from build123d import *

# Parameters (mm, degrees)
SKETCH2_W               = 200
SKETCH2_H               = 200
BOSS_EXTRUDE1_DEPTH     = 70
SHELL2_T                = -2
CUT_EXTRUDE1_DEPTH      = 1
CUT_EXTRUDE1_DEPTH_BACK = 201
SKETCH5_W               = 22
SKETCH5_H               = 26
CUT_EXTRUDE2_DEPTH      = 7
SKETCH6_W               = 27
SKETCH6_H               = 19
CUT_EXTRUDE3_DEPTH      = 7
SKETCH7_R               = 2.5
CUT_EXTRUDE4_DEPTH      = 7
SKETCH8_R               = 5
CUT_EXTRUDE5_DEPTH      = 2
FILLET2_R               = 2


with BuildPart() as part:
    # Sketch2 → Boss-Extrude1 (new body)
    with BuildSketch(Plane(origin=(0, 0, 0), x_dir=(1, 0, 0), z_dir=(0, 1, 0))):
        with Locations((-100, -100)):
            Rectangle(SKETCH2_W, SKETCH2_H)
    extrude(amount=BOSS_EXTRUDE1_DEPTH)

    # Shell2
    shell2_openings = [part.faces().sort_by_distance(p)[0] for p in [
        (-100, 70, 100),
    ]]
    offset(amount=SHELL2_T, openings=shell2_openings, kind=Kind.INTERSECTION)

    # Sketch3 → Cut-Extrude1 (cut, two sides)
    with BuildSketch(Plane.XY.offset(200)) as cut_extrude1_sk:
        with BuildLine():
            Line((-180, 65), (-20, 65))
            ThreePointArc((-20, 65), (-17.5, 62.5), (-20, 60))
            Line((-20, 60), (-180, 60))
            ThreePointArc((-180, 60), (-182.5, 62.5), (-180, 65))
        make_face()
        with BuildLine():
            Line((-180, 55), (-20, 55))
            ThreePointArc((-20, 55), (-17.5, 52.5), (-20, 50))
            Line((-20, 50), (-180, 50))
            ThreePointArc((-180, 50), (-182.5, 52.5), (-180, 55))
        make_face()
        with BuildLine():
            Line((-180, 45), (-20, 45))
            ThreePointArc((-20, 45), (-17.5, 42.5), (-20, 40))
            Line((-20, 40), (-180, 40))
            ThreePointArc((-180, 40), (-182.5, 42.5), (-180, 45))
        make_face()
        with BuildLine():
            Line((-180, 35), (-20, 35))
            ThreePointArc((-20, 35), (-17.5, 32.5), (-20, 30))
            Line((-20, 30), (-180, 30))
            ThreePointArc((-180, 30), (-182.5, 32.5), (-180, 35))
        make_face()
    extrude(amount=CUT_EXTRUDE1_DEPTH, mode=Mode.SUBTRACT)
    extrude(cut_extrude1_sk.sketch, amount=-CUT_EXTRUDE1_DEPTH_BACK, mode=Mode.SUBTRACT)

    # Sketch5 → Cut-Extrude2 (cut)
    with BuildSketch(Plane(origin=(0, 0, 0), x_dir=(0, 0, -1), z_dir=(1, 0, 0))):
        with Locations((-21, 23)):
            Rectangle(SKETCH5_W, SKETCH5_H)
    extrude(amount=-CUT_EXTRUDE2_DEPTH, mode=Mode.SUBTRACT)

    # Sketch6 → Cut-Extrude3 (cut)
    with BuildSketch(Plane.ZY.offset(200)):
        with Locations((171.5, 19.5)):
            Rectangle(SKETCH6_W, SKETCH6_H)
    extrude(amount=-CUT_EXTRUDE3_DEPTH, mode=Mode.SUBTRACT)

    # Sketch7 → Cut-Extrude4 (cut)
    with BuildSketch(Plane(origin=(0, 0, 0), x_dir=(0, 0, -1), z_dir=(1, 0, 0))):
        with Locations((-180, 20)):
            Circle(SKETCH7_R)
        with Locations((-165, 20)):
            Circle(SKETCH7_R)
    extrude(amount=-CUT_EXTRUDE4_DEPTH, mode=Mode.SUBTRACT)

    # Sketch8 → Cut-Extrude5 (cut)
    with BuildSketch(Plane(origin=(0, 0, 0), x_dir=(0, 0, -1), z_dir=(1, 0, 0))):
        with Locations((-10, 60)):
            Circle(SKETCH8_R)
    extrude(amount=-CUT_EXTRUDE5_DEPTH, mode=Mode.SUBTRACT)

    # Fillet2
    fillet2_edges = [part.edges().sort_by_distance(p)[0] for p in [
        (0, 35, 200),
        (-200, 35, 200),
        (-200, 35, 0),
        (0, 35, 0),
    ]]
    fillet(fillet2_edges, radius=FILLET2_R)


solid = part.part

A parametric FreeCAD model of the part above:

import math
import FreeCAD as App
import Part
import Sketcher


def edges_at(feature, points):
    """Names of the edges that pass closest to the given points."""
    edges = feature.Shape.Edges
    near = lambda p: min(range(len(edges)), key=lambda i: edges[i].distToShape(Part.Vertex(*p))[0])
    return sorted({f"Edge{near(p) + 1}" for p in points})


def faces_at(feature, points):
    """Names of the faces that lie closest to the given points."""
    faces = feature.Shape.Faces
    near = lambda p: min(range(len(faces)), key=lambda i: faces[i].distToShape(Part.Vertex(*p))[0])
    return sorted({f"Face{near(p) + 1}" for p in points})

doc = App.newDocument("Part")
body = doc.addObject("PartDesign::Body", "Body")

sketch1 = body.newObject("Sketcher::SketchObject", "Sketch")
sketch1.AttachmentSupport = (doc.getObject("XZ_Plane"), [""])
sketch1.MapMode = "FlatFace"
sketch1.addGeometry([
    Part.LineSegment(App.Vector(-200, 0, 0), App.Vector(-200, 200, 0)),
    Part.LineSegment(App.Vector(-200, 200, 0), App.Vector(0, 200, 0)),
    Part.LineSegment(App.Vector(0, 200, 0), App.Vector(0, 0, 0)),
    Part.LineSegment(App.Vector(0, 0, 0), App.Vector(-200, 0, 0)),
], False)
sketch1.addConstraint([
    Sketcher.Constraint("Coincident", 0, 2, 1, 1),
    Sketcher.Constraint("Coincident", 1, 2, 2, 1),
    Sketcher.Constraint("Coincident", 2, 2, 3, 1),
    Sketcher.Constraint("Coincident", 3, 2, 0, 1),
    Sketcher.Constraint("Vertical", 0),
    Sketcher.Constraint("Horizontal", 1),
    Sketcher.Constraint("Vertical", 2),
    Sketcher.Constraint("Horizontal", 3),
    Sketcher.Constraint("Coincident", 2, 2, -1, 1),
    Sketcher.Constraint("Equal", 3, 0),
    Sketcher.Constraint("DistanceX", 1, 1, 1, 2, 200.0),
])
pad1 = body.newObject("PartDesign::Pad", "Pad")
pad1.Profile = sketch1
pad1.Length = 70
pad1.Reversed = True
doc.recompute()

thickness = body.newObject("PartDesign::Thickness", "Thickness")
thickness.Base = (pad1, faces_at(pad1, [(-100, 70, 100)]))
thickness.Value = 2
thickness.Reversed = True
thickness.Join = "Intersection"

sketch2 = body.newObject("Sketcher::SketchObject", "Sketch001")
sketch2.AttachmentSupport = (doc.getObject("XY_Plane"), [""])
sketch2.MapMode = "FlatFace"
sketch2.AttachmentOffset = App.Placement(App.Vector(0, 0, 200), App.Rotation())
sketch2.addGeometry([
    Part.LineSegment(App.Vector(-20, 65, 0), App.Vector(-180, 65, 0)),
    Part.ArcOfCircle(Part.Circle(App.Vector(-180, 62.5, 0), App.Vector(0, 0, 1), 2.5), math.radians(90), math.radians(270)),
    Part.LineSegment(App.Vector(-180, 60, 0), App.Vector(-20, 60, 0)),
    Part.ArcOfCircle(Part.Circle(App.Vector(-20, 62.5, 0), App.Vector(0, 0, 1), 2.5), math.radians(-90), math.radians(90)),
    Part.LineSegment(App.Vector(-20, 55, 0), App.Vector(-180, 55, 0)),
    Part.ArcOfCircle(Part.Circle(App.Vector(-180, 52.5, 0), App.Vector(0, 0, 1), 2.5), math.radians(90), math.radians(270)),
    Part.LineSegment(App.Vector(-180, 50, 0), App.Vector(-20, 50, 0)),
    Part.ArcOfCircle(Part.Circle(App.Vector(-20, 52.5, 0), App.Vector(0, 0, 1), 2.5), math.radians(-90), math.radians(90)),
    Part.LineSegment(App.Vector(-20, 45, 0), App.Vector(-180, 45, 0)),
    Part.ArcOfCircle(Part.Circle(App.Vector(-180, 42.5, 0), App.Vector(0, 0, 1), 2.5), math.radians(90), math.radians(270)),
    Part.LineSegment(App.Vector(-180, 40, 0), App.Vector(-20, 40, 0)),
    Part.ArcOfCircle(Part.Circle(App.Vector(-20, 42.5, 0), App.Vector(0, 0, 1), 2.5), math.radians(-90), math.radians(90)),
    Part.LineSegment(App.Vector(-20, 35, 0), App.Vector(-180, 35, 0)),
    Part.ArcOfCircle(Part.Circle(App.Vector(-180, 32.5, 0), App.Vector(0, 0, 1), 2.5), math.radians(90), math.radians(270)),
    Part.LineSegment(App.Vector(-180, 30, 0), App.Vector(-20, 30, 0)),
    Part.ArcOfCircle(Part.Circle(App.Vector(-20, 32.5, 0), App.Vector(0, 0, 1), 2.5), math.radians(-90), math.radians(90)),
], False)
sketch2.addConstraint([
    Sketcher.Constraint("Tangent", 0, 2, 1, 1),
    Sketcher.Constraint("Tangent", 1, 2, 2, 1),
    Sketcher.Constraint("Tangent", 2, 2, 3, 1),
    Sketcher.Constraint("Tangent", 3, 2, 0, 1),
    Sketcher.Constraint("Tangent", 4, 2, 5, 1),
    Sketcher.Constraint("Tangent", 5, 2, 6, 1),
    Sketcher.Constraint("Tangent", 6, 2, 7, 1),
    Sketcher.Constraint("Tangent", 7, 2, 4, 1),
    Sketcher.Constraint("Tangent", 8, 2, 9, 1),
    Sketcher.Constraint("Tangent", 9, 2, 10, 1),
    Sketcher.Constraint("Tangent", 10, 2, 11, 1),
    Sketcher.Constraint("Tangent", 11, 2, 8, 1),
    Sketcher.Constraint("Tangent", 12, 2, 13, 1),
    Sketcher.Constraint("Tangent", 13, 2, 14, 1),
    Sketcher.Constraint("Tangent", 14, 2, 15, 1),
    Sketcher.Constraint("Tangent", 15, 2, 12, 1),
    Sketcher.Constraint("Horizontal", 0),
    Sketcher.Constraint("Horizontal", 2),
    Sketcher.Constraint("Horizontal", 4),
    Sketcher.Constraint("Horizontal", 6),
    Sketcher.Constraint("Horizontal", 8),
    Sketcher.Constraint("Horizontal", 10),
    Sketcher.Constraint("Horizontal", 12),
    Sketcher.Constraint("Horizontal", 14),
    Sketcher.Constraint("Equal", 3, 5),
    Sketcher.Constraint("Equal", 7, 9),
    Sketcher.Constraint("Equal", 11, 13),
    Sketcher.Constraint("Vertical", 1, 3, 5, 3),
    Sketcher.Constraint("Vertical", 3, 3, 7, 3),
    Sketcher.Constraint("Vertical", 5, 3, 9, 3),
    Sketcher.Constraint("Vertical", 7, 3, 11, 3),
    Sketcher.Constraint("Vertical", 9, 3, 13, 3),
    Sketcher.Constraint("Vertical", 11, 3, 15, 3),
    Sketcher.Constraint("Radius", 1, 2.5),
    Sketcher.Constraint("DistanceX", 0, 2, 0, 1, 160.0),
    Sketcher.Constraint("DistanceX", 1, 3, -1, 1, 180.0),
    Sketcher.Constraint("DistanceY", -1, 1, 0, 2, 65.0),
    Sketcher.Constraint("DistanceY", -1, 1, 4, 2, 55.0),
    Sketcher.Constraint("DistanceY", -1, 1, 8, 2, 45.0),
    Sketcher.Constraint("DistanceY", -1, 1, 12, 2, 35.0),
])
pocket1 = body.newObject("PartDesign::Pocket", "Pocket")
pocket1.Profile = sketch2
pocket1.Type = "ThroughAll"
pocket1.Midplane = True

sketch3 = body.newObject("Sketcher::SketchObject", "Sketch002")
sketch3.AttachmentSupport = (doc.getObject("YZ_Plane"), [""])
sketch3.MapMode = "FlatFace"
sketch3.addGeometry([
    Part.LineSegment(App.Vector(36, 32, 0), App.Vector(10, 32, 0)),
    Part.LineSegment(App.Vector(10, 32, 0), App.Vector(10, 10, 0)),
    Part.LineSegment(App.Vector(10, 10, 0), App.Vector(36, 10, 0)),
    Part.LineSegment(App.Vector(36, 10, 0), App.Vector(36, 32, 0)),
], False)
sketch3.addConstraint([
    Sketcher.Constraint("Coincident", 0, 2, 1, 1),
    Sketcher.Constraint("Coincident", 1, 2, 2, 1),
    Sketcher.Constraint("Coincident", 2, 2, 3, 1),
    Sketcher.Constraint("Coincident", 3, 2, 0, 1),
    Sketcher.Constraint("Horizontal", 0),
    Sketcher.Constraint("Vertical", 1),
    Sketcher.Constraint("Horizontal", 2),
    Sketcher.Constraint("Vertical", 3),
    Sketcher.Constraint("DistanceX", 0, 2, 0, 1, 26.0),
    Sketcher.Constraint("DistanceY", 1, 2, 1, 1, 22.0),
    Sketcher.Constraint("DistanceX", -1, 1, 0, 2, 10.0),
    Sketcher.Constraint("DistanceY", -1, 1, 0, 2, 32.0),
])
pocket2 = body.newObject("PartDesign::Pocket", "Pocket001")
pocket2.Profile = sketch3
pocket2.Length = 7

sketch4 = body.newObject("Sketcher::SketchObject", "Sketch003")
sketch4.AttachmentSupport = (doc.getObject("YZ_Plane"), [""])
sketch4.MapMode = "FlatFace"
sketch4.AttachmentOffset = App.Placement(App.Vector(0, 0, -200), App.Rotation())
sketch4.addGeometry([
    Part.LineSegment(App.Vector(29, 158, 0), App.Vector(10, 158, 0)),
    Part.LineSegment(App.Vector(10, 158, 0), App.Vector(10, 185, 0)),
    Part.LineSegment(App.Vector(10, 185, 0), App.Vector(29, 185, 0)),
    Part.LineSegment(App.Vector(29, 185, 0), App.Vector(29, 158, 0)),
], False)
sketch4.addConstraint([
    Sketcher.Constraint("Coincident", 0, 2, 1, 1),
    Sketcher.Constraint("Coincident", 1, 2, 2, 1),
    Sketcher.Constraint("Coincident", 2, 2, 3, 1),
    Sketcher.Constraint("Coincident", 3, 2, 0, 1),
    Sketcher.Constraint("Horizontal", 0),
    Sketcher.Constraint("Vertical", 1),
    Sketcher.Constraint("Horizontal", 2),
    Sketcher.Constraint("Vertical", 3),
    Sketcher.Constraint("DistanceX", 0, 2, 0, 1, 19.0),
    Sketcher.Constraint("DistanceY", 1, 1, 1, 2, 27.0),
    Sketcher.Constraint("DistanceX", -1, 1, 0, 2, 10.0),
    Sketcher.Constraint("DistanceY", -1, 1, 0, 2, 158.0),
])
pocket3 = body.newObject("PartDesign::Pocket", "Pocket002")
pocket3.Profile = sketch4
pocket3.Length = 7
pocket3.Reversed = True

sketch5 = body.newObject("Sketcher::SketchObject", "Sketch004")
sketch5.AttachmentSupport = (doc.getObject("YZ_Plane"), [""])
sketch5.MapMode = "FlatFace"
sketch5.addGeometry([
    Part.Circle(App.Vector(20, 180, 0), App.Vector(0, 0, 1), 2.5),
    Part.Circle(App.Vector(20, 165, 0), App.Vector(0, 0, 1), 2.5),
], False)
sketch5.addConstraint([
    Sketcher.Constraint("Equal", 0, 1),
    Sketcher.Constraint("Vertical", 0, 3, 1, 3),
    Sketcher.Constraint("Diameter", 0, 5.0),
    Sketcher.Constraint("DistanceX", -1, 1, 0, 3, 20.0),
    Sketcher.Constraint("DistanceY", -1, 1, 0, 3, 180.0),
    Sketcher.Constraint("DistanceY", -1, 1, 1, 3, 165.0),
])
pocket4 = body.newObject("PartDesign::Pocket", "Pocket003")
pocket4.Profile = sketch5
pocket4.Length = 7

sketch6 = body.newObject("Sketcher::SketchObject", "Sketch005")
sketch6.AttachmentSupport = (doc.getObject("YZ_Plane"), [""])
sketch6.MapMode = "FlatFace"
sketch6.addGeometry(Part.Circle(App.Vector(60, 10, 0), App.Vector(0, 0, 1), 5), False)
sketch6.addConstraint([
    Sketcher.Constraint("Diameter", 0, 10.0),
    Sketcher.Constraint("DistanceX", -1, 1, 0, 3, 60.0),
    Sketcher.Constraint("DistanceY", -1, 1, 0, 3, 10.0),
])
pocket5 = body.newObject("PartDesign::Pocket", "Pocket004")
pocket5.Profile = sketch6
pocket5.Length = 2
doc.recompute()

fillet = body.newObject("PartDesign::Fillet", "Fillet")
fillet.Base = (pocket5, edges_at(pocket5, [
    (0, 35, 200),
    (-200, 35, 200),
    (-200, 35, 0),
    (0, 35, 0),
]))
fillet.Radius = 2

doc.recompute()
